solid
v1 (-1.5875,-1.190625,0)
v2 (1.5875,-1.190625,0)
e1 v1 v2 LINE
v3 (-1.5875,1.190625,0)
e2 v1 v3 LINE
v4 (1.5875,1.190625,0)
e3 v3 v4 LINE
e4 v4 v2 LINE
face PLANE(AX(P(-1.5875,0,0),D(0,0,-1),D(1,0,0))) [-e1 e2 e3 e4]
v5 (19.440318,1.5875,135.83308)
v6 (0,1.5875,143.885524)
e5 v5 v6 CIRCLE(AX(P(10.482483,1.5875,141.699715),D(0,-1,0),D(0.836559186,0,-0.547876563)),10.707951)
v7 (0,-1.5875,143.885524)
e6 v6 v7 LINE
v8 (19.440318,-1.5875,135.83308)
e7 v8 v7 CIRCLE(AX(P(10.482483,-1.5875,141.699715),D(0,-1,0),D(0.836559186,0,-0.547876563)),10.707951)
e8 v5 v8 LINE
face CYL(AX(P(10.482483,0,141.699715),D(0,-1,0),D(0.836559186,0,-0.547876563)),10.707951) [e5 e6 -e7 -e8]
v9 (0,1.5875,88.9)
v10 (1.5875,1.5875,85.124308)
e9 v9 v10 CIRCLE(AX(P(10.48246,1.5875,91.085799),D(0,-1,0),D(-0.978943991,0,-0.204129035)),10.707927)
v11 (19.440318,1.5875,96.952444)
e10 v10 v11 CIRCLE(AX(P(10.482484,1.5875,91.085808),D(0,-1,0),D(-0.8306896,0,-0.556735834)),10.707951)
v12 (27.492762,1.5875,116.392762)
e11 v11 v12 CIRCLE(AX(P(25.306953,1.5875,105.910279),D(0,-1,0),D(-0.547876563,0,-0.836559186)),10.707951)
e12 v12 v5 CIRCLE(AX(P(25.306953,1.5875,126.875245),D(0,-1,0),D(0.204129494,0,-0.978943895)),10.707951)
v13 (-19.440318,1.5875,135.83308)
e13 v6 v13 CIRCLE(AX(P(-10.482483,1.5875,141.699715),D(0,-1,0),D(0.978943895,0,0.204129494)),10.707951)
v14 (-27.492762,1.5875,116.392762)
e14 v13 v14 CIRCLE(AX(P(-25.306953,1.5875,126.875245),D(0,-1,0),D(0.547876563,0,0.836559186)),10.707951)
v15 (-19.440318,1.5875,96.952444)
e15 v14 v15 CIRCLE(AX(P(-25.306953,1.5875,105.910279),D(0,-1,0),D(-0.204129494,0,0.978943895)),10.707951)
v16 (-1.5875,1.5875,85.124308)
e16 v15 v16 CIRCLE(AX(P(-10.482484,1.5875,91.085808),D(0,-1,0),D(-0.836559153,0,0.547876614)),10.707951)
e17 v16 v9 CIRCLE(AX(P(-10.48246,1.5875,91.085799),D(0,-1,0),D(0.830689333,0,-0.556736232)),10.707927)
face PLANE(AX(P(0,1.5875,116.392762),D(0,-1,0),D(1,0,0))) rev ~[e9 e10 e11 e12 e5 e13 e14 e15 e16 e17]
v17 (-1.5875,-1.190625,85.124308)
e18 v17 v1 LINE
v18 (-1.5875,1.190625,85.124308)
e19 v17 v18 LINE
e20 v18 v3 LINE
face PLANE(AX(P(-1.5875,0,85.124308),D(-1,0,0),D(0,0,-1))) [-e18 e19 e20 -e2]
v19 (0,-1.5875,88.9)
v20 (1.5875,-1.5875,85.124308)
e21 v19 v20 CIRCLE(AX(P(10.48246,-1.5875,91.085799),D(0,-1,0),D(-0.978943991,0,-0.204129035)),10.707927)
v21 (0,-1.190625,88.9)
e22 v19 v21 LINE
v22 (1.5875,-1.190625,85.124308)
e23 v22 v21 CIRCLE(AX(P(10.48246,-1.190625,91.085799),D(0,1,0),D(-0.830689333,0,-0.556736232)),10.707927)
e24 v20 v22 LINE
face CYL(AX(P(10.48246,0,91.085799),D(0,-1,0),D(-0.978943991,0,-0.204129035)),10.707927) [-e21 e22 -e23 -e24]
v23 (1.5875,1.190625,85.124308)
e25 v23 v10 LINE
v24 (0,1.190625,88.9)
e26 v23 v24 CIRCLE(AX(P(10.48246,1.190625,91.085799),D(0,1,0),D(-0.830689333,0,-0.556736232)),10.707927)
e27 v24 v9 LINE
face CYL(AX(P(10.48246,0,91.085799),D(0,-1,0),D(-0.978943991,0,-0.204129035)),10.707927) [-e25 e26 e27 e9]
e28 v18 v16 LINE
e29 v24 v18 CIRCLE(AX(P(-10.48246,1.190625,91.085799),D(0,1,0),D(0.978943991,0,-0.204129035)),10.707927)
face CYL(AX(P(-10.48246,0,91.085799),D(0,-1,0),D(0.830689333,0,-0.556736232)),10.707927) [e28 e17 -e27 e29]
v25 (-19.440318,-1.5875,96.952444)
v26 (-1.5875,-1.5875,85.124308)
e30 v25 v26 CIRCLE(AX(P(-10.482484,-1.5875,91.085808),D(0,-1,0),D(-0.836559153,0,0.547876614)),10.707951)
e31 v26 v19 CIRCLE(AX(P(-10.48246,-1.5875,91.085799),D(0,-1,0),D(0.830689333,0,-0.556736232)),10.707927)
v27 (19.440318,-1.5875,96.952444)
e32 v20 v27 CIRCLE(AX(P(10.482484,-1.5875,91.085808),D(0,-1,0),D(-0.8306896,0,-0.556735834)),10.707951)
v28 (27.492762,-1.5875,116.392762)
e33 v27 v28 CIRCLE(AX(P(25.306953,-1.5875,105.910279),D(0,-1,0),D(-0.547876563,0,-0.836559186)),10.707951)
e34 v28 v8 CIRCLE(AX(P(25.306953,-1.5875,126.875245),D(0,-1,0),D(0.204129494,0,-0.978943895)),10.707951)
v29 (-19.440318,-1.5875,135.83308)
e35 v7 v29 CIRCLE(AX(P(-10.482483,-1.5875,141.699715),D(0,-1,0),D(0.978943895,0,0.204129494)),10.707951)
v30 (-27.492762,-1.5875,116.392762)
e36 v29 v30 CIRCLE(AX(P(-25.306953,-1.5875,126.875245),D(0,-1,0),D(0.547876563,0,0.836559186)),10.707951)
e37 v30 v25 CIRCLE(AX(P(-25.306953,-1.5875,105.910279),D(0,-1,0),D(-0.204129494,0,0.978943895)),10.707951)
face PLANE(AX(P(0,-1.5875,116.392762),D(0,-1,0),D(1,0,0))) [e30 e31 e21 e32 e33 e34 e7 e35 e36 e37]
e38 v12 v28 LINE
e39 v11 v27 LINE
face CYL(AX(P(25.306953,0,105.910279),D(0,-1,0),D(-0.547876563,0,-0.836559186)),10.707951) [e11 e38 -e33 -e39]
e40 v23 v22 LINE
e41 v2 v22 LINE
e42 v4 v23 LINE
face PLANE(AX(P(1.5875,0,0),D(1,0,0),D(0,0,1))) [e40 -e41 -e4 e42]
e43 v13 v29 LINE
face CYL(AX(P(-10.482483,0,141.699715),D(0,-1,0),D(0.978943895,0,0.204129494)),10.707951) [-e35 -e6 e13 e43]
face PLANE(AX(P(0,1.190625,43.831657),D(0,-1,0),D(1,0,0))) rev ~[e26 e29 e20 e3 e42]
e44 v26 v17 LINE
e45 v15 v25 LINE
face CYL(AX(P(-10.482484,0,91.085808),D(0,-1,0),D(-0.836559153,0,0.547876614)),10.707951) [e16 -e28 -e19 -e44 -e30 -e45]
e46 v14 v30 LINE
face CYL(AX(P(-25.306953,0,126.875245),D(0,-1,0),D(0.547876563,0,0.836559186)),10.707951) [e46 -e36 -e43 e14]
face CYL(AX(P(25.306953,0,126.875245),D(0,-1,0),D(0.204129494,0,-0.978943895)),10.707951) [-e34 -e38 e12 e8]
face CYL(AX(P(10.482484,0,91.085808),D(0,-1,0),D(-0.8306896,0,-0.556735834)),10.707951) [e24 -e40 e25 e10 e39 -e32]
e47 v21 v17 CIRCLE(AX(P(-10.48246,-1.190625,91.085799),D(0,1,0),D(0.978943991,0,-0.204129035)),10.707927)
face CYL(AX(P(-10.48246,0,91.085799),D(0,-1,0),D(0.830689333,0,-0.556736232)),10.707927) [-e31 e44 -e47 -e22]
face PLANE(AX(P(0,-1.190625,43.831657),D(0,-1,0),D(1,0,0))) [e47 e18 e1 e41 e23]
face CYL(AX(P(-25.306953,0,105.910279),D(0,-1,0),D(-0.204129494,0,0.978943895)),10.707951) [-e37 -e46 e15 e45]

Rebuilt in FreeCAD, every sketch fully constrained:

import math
import FreeCAD as App
import Part
import Sketcher
from FreeCAD import Vector
Q = App.Units.Quantity

doc = App.newDocument("Part")
body = doc.addObject("PartDesign::Body", "Body")

sketch1 = doc.addObject("Sketcher::SketchObject", "Sketch")
body.addObject(sketch1)
sketch1.AttachmentSupport = (doc.XZ_Plane, [""])
sketch1.MapMode = "FlatFace"
sketch1.addGeometry(Part.ArcOfCircle(Part.Circle(Vector(10.5, 91.1, 0), Vector(0, 0, 1), 10.7), math.radians(-146), math.radians(33)), False)
sketch1.addGeometry(Part.ArcOfCircle(Part.Circle(Vector(25.3, 105.9, 0), Vector(0, 0, 1), 10.7), math.radians(-123), math.radians(78)), False)
sketch1.addGeometry(Part.ArcOfCircle(Part.Circle(Vector(25.3, 126.9, 0), Vector(0, 0, 1), 10.7), math.radians(-78), math.radians(123)), False)
sketch1.addGeometry(Part.ArcOfCircle(Part.Circle(Vector(10.5, 141.7, 0), Vector(0, 0, 1), 10.7), math.radians(-33), math.radians(168)), False)
sketch1.addGeometry(Part.ArcOfCircle(Part.Circle(Vector(-10.5, 141.7, 0), Vector(0, 0, 1), 10.7), math.radians(12), math.radians(213)), False)
sketch1.addGeometry(Part.ArcOfCircle(Part.Circle(Vector(-25.3, 126.9, 0), Vector(0, 0, 1), 10.7), math.radians(57), math.radians(258)), False)
sketch1.addGeometry(Part.ArcOfCircle(Part.Circle(Vector(-25.3, 105.9, 0), Vector(0, 0, 1), 10.7), math.radians(102), math.radians(303)), False)
sketch1.addGeometry(Part.ArcOfCircle(Part.Circle(Vector(-10.5, 91.1, 0), Vector(0, 0, 1), 10.7), math.radians(147), math.radians(326)), False)
sketch1.addGeometry(Part.ArcOfCircle(Part.Circle(Vector(-10.5, 91.1, 0), Vector(0, 0, 1), 10.7), math.radians(-34), math.radians(-12)), False)
sketch1.addGeometry(Part.ArcOfCircle(Part.Circle(Vector(10.5, 91.1, 0), Vector(0, 0, 1), 10.7), math.radians(-168), math.radians(-146)), False)
sketch1.addConstraint(Sketcher.Constraint("Coincident", 0, 2, 1, 1))
sketch1.addConstraint(Sketcher.Constraint("Coincident", 1, 2, 2, 1))
sketch1.addConstraint(Sketcher.Constraint("Coincident", 2, 2, 3, 1))
sketch1.addConstraint(Sketcher.Constraint("Coincident", 3, 2, 4, 1))
sketch1.addConstraint(Sketcher.Constraint("Coincident", 4, 2, 5, 1))
sketch1.addConstraint(Sketcher.Constraint("Coincident", 5, 2, 6, 1))
sketch1.addConstraint(Sketcher.Constraint("Coincident", 6, 2, 7, 1))
sketch1.addConstraint(Sketcher.Constraint("Tangent", 7, 2, 8, 1))
sketch1.addConstraint(Sketcher.Constraint("Coincident", 8, 2, 9, 1))
sketch1.addConstraint(Sketcher.Constraint("Tangent", 9, 2, 0, 1))
sketch1.addConstraint(Sketcher.Constraint("Equal", 0, 1))
sketch1.addConstraint(Sketcher.Constraint("Equal", 1, 2))
sketch1.addConstraint(Sketcher.Constraint("Equal", 2, 3))
sketch1.addConstraint(Sketcher.Constraint("Equal", 3, 4))
sketch1.addConstraint(Sketcher.Constraint("Equal", 4, 5))
sketch1.addConstraint(Sketcher.Constraint("Equal", 5, 6))
sketch1.addConstraint(Sketcher.Constraint("Equal", 6, 7))
sketch1.addConstraint(Sketcher.Constraint("Equal", 8, 9))
sketch1.addConstraint(Sketcher.Constraint("Symmetric", 3, 3, 4, 3, -2))
sketch1.addConstraint(Sketcher.Constraint("Symmetric", 2, 3, 5, 3, -2))
sketch1.addConstraint(Sketcher.Constraint("Symmetric", 1, 3, 6, 3, -2))
sketch1.addConstraint(Sketcher.Constraint("Symmetric", 0, 3, 7, 3, -2))
sketch1.addConstraint(Sketcher.Constraint("Horizontal", 7, 2, 9, 2))
sketch1.addConstraint(Sketcher.Constraint("Vertical", 1, 3, 2, 3))
sketch1.addConstraint(Sketcher.Constraint("Vertical", 0, 3, 3, 3))
sketch1.addConstraint(Sketcher.Constraint("Vertical", 0, 2, 2, 2))
sketch1.addConstraint(Sketcher.Constraint("DistanceY", -1, 1, 8, 2, Q("3.5 in")))
sketch1.addConstraint(Sketcher.Constraint("DistanceX", 7, 2, -1, 1, Q("0.0625 in")))
sketch1.addConstraint(Sketcher.Constraint("Radius", 0, Q("10.707951 mm")))
sketch1.addConstraint(Sketcher.Constraint("Radius", 8, Q("10.707927 mm")))
sketch1.addConstraint(Sketcher.Constraint("DistanceY", -1, 1, 8, 3, Q("91.085799 mm")))
sketch1.addConstraint(Sketcher.Constraint("DistanceY", 0, 2, 2, 3, Q("29.922801 mm")))
sketch1.addConstraint(Sketcher.Constraint("DistanceX", 4, 3, 2, 2, Q("29.922801 mm")))
sketch1.addConstraint(Sketcher.Constraint("DistanceY", -1, 1, 1, 3, Q("105.910279 mm")))
pad1 = doc.addObject("PartDesign::Pad", "Pad")
body.addObject(pad1)
pad1.Profile = sketch1
pad1.Length = Q("0.125 in")
pad1.Midplane = True

sketch2 = doc.addObject("Sketcher::SketchObject", "Sketch001")
body.addObject(sketch2)
sketch2.AttachmentSupport = (doc.XZ_Plane, [""])
sketch2.MapMode = "FlatFace"
sketch2.addGeometry(Part.LineSegment(Vector(-1.6, 0, 0), Vector(1.6, 0, 0)), False)
sketch2.addGeometry(Part.LineSegment(Vector(1.6, 0, 0), Vector(1.6, 85.1, 0)), False)
sketch2.addGeometry(Part.ArcOfCircle(Part.Circle(Vector(10.5, 91.1, 0), Vector(0, 0, 1), 10.7), math.radians(-168), math.radians(-146)), False)
sketch2.addGeometry(Part.ArcOfCircle(Part.Circle(Vector(-10.5, 91.1, 0), Vector(0, 0, 1), 10.7), math.radians(-34), math.radians(-12)), False)
sketch2.addGeometry(Part.LineSegment(Vector(-1.6, 85.1, 0), Vector(-1.6, 0, 0)), False)
sketch2.addConstraint(Sketcher.Constraint("Coincident", 0, 2, 1, 1))
sketch2.addConstraint(Sketcher.Constraint("Coincident", 1, 2, 2, 2))
sketch2.addConstraint(Sketcher.Constraint("Coincident", 2, 1, 3, 2))
sketch2.addConstraint(Sketcher.Constraint("Coincident", 3, 1, 4, 1))
sketch2.addConstraint(Sketcher.Constraint("Coincident", 4, 2, 0, 1))
sketch2.addConstraint(Sketcher.Constraint("Horizontal", 0))
sketch2.addConstraint(Sketcher.Constraint("Vertical", 1))
sketch2.addConstraint(Sketcher.Constraint("Vertical", 4))
sketch2.addConstraint(Sketcher.Constraint("Equal", 2, 3))
sketch2.addConstraint(Sketcher.Constraint("Symmetric", 0, 2, 4, 2, -1, 1))
sketch2.addConstraint(Sketcher.Constraint("Symmetric", 2, 3, 3, 3, -2))
sketch2.addConstraint(Sketcher.Constraint("DistanceY", -1, 1, 2, 1, Q("3.5 in")))
sketch2.addConstraint(Sketcher.Constraint("DistanceX", 0, 1, 0, 2, Q("0.125 in")))
sketch2.addConstraint(Sketcher.Constraint("Radius", 2, Q("10.707927 mm")))
sketch2.addConstraint(Sketcher.Constraint("DistanceY", 1, 1, 1, 2, Q("85.124308 mm")))
pad2 = doc.addObject("PartDesign::Pad", "Pad001")
body.addObject(pad2)
pad2.Profile = sketch2
pad2.Length = Q("0.09375 in")
pad2.Midplane = True

doc.recompute()
